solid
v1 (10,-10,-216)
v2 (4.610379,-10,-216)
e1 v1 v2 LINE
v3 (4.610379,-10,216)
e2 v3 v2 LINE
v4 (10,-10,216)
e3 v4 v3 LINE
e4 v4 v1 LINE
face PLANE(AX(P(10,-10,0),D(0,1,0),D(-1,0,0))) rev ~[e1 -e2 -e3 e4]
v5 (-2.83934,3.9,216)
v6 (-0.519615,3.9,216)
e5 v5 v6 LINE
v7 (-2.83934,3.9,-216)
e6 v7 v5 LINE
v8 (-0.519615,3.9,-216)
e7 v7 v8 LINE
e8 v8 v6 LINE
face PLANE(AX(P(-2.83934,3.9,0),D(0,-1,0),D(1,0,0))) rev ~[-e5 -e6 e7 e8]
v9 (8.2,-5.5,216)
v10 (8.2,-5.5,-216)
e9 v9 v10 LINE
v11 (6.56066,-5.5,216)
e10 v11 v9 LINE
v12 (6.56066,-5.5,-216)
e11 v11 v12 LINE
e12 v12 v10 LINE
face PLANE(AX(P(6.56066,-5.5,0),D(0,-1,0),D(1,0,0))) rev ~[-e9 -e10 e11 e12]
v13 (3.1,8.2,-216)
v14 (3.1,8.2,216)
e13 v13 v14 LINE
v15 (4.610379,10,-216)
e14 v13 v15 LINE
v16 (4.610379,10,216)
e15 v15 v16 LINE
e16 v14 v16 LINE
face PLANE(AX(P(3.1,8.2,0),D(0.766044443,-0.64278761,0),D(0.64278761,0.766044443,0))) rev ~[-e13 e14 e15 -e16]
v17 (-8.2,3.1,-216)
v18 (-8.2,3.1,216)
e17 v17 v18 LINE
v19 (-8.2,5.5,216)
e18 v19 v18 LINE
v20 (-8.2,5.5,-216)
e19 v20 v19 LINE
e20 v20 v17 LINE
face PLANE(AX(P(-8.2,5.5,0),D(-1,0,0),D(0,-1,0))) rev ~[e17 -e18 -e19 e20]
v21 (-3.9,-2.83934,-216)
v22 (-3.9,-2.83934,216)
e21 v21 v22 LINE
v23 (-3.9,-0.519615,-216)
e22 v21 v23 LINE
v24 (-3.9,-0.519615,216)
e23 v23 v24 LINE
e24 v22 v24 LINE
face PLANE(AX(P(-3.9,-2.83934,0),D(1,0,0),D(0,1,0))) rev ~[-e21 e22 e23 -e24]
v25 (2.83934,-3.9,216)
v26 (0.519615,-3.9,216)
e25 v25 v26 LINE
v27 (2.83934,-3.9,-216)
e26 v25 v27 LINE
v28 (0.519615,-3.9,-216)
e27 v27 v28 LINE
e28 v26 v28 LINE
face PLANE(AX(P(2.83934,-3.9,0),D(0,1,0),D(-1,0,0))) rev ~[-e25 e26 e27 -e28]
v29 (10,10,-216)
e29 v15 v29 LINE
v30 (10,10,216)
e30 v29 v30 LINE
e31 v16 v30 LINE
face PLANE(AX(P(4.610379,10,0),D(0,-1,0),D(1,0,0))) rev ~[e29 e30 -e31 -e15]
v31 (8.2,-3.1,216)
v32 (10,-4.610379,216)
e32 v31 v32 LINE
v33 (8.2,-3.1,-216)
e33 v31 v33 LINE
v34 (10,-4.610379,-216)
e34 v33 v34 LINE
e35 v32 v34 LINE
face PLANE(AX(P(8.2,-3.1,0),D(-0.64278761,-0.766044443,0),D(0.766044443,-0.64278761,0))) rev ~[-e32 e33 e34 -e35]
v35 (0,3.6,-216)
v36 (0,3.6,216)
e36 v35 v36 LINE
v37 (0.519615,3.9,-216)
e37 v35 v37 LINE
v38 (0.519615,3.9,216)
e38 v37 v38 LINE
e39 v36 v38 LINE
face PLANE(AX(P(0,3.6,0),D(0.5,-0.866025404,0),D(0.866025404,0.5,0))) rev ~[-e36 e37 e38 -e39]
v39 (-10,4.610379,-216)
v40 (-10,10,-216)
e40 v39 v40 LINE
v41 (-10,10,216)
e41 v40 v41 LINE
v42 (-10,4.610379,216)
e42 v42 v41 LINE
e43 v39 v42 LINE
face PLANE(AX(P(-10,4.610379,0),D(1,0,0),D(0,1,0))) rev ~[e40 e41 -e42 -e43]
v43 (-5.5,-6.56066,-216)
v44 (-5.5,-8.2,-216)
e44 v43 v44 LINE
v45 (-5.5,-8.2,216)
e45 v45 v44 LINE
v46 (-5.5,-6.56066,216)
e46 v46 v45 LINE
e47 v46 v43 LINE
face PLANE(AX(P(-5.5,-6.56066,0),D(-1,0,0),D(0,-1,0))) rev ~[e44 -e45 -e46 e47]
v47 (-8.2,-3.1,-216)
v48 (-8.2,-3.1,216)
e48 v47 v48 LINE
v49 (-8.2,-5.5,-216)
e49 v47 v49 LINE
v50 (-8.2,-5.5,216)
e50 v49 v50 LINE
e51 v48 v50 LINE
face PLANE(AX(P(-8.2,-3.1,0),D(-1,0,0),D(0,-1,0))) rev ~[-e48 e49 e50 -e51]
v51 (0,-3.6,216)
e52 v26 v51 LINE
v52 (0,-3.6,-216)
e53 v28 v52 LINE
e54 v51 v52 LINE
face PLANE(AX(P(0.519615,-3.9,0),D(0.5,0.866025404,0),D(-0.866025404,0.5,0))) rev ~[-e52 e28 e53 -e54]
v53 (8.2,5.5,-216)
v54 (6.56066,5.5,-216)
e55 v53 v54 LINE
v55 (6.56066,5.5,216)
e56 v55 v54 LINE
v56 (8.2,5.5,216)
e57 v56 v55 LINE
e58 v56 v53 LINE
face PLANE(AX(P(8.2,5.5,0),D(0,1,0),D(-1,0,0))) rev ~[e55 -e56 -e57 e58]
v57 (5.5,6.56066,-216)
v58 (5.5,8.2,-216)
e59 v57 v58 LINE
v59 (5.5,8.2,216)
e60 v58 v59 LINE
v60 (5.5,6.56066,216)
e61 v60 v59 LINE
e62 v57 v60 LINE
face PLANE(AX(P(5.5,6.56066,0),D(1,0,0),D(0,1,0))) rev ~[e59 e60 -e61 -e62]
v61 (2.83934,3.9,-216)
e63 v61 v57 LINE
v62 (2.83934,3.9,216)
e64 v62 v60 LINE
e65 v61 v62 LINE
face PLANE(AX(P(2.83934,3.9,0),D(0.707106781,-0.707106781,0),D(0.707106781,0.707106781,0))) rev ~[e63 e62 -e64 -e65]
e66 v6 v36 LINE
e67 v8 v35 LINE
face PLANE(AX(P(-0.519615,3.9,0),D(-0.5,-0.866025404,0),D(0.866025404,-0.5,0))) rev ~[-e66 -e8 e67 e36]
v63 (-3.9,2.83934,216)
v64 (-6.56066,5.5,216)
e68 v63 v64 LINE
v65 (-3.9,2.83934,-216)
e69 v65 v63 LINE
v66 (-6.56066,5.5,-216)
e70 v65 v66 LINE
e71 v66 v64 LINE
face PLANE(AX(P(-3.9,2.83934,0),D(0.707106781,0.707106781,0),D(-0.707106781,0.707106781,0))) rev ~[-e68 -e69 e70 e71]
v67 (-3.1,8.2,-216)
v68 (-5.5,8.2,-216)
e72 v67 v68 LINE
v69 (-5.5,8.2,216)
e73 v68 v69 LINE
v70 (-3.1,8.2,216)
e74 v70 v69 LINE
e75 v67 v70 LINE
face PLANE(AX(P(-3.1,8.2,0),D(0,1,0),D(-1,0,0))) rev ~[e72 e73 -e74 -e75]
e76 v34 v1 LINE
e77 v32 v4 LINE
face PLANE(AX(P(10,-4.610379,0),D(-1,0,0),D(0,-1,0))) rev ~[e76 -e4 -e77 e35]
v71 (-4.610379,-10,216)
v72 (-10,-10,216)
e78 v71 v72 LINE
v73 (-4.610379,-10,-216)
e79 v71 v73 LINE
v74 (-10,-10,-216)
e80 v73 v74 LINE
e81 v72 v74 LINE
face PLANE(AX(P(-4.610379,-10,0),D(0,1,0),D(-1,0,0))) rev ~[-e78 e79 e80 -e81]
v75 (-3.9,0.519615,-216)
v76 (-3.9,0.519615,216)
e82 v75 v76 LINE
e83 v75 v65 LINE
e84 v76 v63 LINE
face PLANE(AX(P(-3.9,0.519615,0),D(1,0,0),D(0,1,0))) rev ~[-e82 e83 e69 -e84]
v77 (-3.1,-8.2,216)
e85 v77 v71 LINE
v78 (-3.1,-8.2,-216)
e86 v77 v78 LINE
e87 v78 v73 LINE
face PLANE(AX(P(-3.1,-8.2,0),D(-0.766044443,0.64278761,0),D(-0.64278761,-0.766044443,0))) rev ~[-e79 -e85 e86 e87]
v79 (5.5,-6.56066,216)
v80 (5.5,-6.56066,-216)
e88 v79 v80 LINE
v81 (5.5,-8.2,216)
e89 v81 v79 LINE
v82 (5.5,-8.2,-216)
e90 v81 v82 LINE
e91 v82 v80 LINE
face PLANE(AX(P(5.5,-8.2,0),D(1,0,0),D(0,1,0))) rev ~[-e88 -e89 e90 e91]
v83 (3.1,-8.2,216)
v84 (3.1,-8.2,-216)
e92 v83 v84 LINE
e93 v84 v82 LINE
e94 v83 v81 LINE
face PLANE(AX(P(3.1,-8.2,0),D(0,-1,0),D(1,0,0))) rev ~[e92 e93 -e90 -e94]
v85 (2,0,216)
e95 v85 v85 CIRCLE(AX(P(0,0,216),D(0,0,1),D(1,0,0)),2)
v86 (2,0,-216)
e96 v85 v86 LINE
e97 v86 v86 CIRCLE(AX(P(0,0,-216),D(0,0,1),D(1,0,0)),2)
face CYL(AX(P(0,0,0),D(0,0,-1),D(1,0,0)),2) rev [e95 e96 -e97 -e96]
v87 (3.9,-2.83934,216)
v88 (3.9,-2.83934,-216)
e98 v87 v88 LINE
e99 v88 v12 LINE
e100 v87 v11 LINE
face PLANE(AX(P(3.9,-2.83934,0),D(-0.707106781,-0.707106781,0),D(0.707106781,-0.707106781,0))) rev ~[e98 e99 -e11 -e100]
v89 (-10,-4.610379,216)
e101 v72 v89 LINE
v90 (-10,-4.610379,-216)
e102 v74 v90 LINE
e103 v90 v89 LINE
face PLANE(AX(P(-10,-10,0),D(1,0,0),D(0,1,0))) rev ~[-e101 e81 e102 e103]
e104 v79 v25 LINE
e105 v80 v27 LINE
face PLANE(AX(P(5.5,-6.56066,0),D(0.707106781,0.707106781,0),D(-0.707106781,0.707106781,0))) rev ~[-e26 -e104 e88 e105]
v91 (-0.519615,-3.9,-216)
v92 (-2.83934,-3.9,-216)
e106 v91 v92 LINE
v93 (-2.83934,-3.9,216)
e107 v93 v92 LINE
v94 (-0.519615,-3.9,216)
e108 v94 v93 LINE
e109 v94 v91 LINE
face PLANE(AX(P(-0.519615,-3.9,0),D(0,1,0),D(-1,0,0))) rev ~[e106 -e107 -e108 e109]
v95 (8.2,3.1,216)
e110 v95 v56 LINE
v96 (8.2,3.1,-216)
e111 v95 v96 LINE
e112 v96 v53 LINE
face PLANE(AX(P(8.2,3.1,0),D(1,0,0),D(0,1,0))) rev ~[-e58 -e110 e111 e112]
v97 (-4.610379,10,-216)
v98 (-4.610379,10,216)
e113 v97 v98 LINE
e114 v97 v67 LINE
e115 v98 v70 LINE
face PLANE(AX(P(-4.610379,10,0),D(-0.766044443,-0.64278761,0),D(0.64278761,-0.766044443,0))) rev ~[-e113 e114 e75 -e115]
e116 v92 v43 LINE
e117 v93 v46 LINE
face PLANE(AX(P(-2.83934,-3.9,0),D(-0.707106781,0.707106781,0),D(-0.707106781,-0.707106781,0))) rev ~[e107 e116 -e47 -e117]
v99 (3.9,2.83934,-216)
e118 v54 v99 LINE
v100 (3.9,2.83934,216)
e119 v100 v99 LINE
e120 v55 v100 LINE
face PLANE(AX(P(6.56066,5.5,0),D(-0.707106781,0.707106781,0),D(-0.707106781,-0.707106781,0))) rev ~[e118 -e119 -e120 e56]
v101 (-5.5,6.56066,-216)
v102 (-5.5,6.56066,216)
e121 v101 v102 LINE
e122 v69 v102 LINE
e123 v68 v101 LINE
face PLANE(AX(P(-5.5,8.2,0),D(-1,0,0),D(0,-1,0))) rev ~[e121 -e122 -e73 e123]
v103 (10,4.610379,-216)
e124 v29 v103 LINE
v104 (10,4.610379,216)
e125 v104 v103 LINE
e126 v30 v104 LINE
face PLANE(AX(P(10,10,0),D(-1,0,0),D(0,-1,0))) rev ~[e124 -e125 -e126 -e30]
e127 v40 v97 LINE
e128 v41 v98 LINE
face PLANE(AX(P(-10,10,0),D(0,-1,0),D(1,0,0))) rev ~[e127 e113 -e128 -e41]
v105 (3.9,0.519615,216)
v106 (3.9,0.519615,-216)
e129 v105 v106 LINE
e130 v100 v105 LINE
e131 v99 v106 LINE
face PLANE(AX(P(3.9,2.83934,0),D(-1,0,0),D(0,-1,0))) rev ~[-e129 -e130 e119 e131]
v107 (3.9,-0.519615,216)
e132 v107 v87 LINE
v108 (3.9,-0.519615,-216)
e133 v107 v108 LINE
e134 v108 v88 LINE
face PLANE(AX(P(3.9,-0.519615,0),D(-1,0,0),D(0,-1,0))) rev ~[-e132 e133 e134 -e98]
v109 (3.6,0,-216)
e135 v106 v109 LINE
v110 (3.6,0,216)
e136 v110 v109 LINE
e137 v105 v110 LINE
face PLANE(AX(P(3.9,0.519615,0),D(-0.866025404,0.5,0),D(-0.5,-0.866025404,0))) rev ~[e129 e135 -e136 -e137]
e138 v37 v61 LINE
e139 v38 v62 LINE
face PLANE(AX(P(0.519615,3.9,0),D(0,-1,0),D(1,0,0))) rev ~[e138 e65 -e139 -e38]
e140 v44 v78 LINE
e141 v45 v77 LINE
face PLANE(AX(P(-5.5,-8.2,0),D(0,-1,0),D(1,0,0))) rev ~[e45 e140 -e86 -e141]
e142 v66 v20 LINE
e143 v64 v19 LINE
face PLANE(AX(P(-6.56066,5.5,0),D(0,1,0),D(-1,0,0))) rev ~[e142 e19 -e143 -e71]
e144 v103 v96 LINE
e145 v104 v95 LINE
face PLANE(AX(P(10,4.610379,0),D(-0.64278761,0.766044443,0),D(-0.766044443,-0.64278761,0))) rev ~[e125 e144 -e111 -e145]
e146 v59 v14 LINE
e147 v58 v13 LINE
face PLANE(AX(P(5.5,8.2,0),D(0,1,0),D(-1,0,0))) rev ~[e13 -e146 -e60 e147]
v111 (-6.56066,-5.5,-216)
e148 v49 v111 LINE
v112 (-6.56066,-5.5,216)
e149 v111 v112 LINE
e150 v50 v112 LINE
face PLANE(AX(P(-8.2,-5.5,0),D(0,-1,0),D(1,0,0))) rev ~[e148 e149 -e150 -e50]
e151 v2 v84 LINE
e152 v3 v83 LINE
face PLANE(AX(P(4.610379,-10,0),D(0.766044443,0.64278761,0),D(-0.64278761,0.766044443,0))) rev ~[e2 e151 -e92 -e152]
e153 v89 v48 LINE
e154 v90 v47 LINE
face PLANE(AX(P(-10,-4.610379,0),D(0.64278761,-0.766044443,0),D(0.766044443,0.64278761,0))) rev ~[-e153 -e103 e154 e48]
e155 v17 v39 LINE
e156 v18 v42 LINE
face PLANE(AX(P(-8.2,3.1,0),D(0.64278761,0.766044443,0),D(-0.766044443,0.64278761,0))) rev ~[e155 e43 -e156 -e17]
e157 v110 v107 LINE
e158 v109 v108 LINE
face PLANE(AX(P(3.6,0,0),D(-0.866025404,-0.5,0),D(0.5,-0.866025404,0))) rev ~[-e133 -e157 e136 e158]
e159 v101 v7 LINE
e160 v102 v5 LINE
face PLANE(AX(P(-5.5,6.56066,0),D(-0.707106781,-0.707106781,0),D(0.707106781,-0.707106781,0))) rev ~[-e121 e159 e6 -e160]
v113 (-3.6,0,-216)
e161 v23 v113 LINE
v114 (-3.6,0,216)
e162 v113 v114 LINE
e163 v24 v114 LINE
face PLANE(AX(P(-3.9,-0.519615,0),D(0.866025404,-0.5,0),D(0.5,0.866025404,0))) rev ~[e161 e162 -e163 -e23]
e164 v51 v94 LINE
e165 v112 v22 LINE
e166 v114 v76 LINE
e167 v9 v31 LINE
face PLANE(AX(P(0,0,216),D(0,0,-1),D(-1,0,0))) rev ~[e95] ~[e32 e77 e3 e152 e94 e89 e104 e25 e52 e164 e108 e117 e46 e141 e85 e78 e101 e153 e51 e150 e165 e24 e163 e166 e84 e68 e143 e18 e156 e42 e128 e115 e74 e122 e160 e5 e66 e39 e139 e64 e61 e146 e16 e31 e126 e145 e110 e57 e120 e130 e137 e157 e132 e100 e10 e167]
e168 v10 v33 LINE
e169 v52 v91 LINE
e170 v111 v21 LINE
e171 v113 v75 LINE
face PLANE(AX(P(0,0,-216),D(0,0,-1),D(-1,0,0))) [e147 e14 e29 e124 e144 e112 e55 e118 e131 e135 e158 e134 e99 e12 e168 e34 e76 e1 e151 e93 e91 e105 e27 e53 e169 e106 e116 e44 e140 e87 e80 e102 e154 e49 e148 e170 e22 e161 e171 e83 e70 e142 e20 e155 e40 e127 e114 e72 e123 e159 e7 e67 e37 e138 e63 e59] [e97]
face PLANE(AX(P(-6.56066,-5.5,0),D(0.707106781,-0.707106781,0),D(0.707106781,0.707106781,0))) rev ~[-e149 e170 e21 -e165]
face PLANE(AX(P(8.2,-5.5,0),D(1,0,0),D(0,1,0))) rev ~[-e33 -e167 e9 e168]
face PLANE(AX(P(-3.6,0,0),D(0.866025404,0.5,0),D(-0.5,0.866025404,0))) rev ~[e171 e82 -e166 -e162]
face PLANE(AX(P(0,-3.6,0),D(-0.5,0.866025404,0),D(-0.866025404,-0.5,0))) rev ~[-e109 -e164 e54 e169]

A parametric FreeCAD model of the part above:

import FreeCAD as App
import Part
import Sketcher
from FreeCAD import Vector
Q = App.Units.Quantity


def add_polygon(sketch, points):
    """Adds a closed chain of lines whose ends are joined by coincident constraints."""
    first, n = sketch.GeometryCount, len(points)
    for a, b in zip(points, points[1:] + points[:1]):
        sketch.addGeometry(Part.LineSegment(App.Vector(*a, 0), App.Vector(*b, 0)), False)
    for i in range(n):
        sketch.addConstraint(Sketcher.Constraint("Coincident", first + i, 2, first + (i + 1) % n, 1))

doc = App.newDocument("Part")
body = doc.addObject("PartDesign::Body", "Body")

sketch1 = body.newObject("Sketcher::SketchObject", "Sketch")
sketch1.AttachmentSupport = (doc.getObject("XY_Plane"), [""])
sketch1.MapMode = "FlatFace"
add_polygon(sketch1, [(10, 4.6), (10, 10), (4.6, 10), (3.1, 8.2), (5.5, 8.2), (5.5, 6.6), (2.8, 3.9), (0.5, 3.9), (0, 3.6), (-0.5, 3.9), (-2.8, 3.9), (-5.5, 6.6), (-5.5, 8.2), (-3.1, 8.2), (-4.6, 10), (-10, 10), (-10, 4.6), (-8.2, 3.1), (-8.2, 5.5), (-6.6, 5.5), (-3.9, 2.8), (-3.9, 0.5), (-3.6, 0), (-3.9, -0.5), (-3.9, -2.8), (-6.6, -5.5), (-8.2, -5.5), (-8.2, -3.1), (-10, -4.6), (-10, -10), (-4.6, -10), (-3.1, -8.2), (-5.5, -8.2), (-5.5, -6.6), (-2.8, -3.9), (-0.5, -3.9), (0, -3.6), (0.5, -3.9), (2.8, -3.9), (5.5, -6.6), (5.5, -8.2), (3.1, -8.2), (4.6, -10), (10, -10), (10, -4.6), (8.2, -3.1), (8.2, -5.5), (6.6, -5.5), (3.9, -2.8), (3.9, -0.5), (3.6, 0), (3.9, 0.5), (3.9, 2.8), (6.6, 5.5), (8.2, 5.5), (8.2, 3.1)])
sketch1.addGeometry(Part.Circle(Vector(0, 0, 0), Vector(0, 0, 1), 2), False)
sketch1.addConstraint(Sketcher.Constraint("Vertical", 0))
sketch1.addConstraint(Sketcher.Constraint("Horizontal", 1))
sketch1.addConstraint(Sketcher.Constraint("Horizontal", 3))
sketch1.addConstraint(Sketcher.Constraint("Vertical", 4))
sketch1.addConstraint(Sketcher.Constraint("Horizontal", 6))
sketch1.addConstraint(Sketcher.Constraint("Horizontal", 9))
sketch1.addConstraint(Sketcher.Constraint("Vertical", 11))
sketch1.addConstraint(Sketcher.Constraint("Horizontal", 12))
sketch1.addConstraint(Sketcher.Constraint("Horizontal", 14))
sketch1.addConstraint(Sketcher.Constraint("Vertical", 15))
sketch1.addConstraint(Sketcher.Constraint("Vertical", 17))
sketch1.addConstraint(Sketcher.Constraint("Horizontal", 18))
sketch1.addConstraint(Sketcher.Constraint("Vertical", 20))
sketch1.addConstraint(Sketcher.Constraint("Vertical", 23))
sketch1.addConstraint(Sketcher.Constraint("Horizontal", 25))
sketch1.addConstraint(Sketcher.Constraint("Vertical", 26))
sketch1.addConstraint(Sketcher.Constraint("Vertical", 28))
sketch1.addConstraint(Sketcher.Constraint("Horizontal", 29))
sketch1.addConstraint(Sketcher.Constraint("Horizontal", 31))
sketch1.addConstraint(Sketcher.Constraint("Vertical", 32))
sketch1.addConstraint(Sketcher.Constraint("Horizontal", 34))
sketch1.addConstraint(Sketcher.Constraint("Horizontal", 37))
sketch1.addConstraint(Sketcher.Constraint("Vertical", 39))
sketch1.addConstraint(Sketcher.Constraint("Horizontal", 40))
sketch1.addConstraint(Sketcher.Constraint("Horizontal", 42))
sketch1.addConstraint(Sketcher.Constraint("Vertical", 43))
sketch1.addConstraint(Sketcher.Constraint("Vertical", 45))
sketch1.addConstraint(Sketcher.Constraint("Horizontal", 46))
sketch1.addConstraint(Sketcher.Constraint("Vertical", 48))
sketch1.addConstraint(Sketcher.Constraint("Vertical", 51))
sketch1.addConstraint(Sketcher.Constraint("Horizontal", 53))
sketch1.addConstraint(Sketcher.Constraint("Vertical", 54))
sketch1.addConstraint(Sketcher.Constraint("Coincident", 56, 3, -1, 1))
sketch1.addConstraint(Sketcher.Constraint("Symmetric", 0, 2, 28, 2, -1, 1))
sketch1.addConstraint(Sketcher.Constraint("Symmetric", 2, 2, 30, 2, -1, 1))
sketch1.addConstraint(Sketcher.Constraint("Symmetric", 4, 2, 32, 2, -1, 1))
sketch1.addConstraint(Sketcher.Constraint("Symmetric", 5, 2, 33, 2, -1, 1))
sketch1.addConstraint(Sketcher.Constraint("Symmetric", 7, 2, 35, 2, -1, 1))
sketch1.addConstraint(Sketcher.Constraint("Symmetric", 8, 2, 36, 2, -1, 1))
sketch1.addConstraint(Sketcher.Constraint("Symmetric", 10, 2, 38, 2, -1, 1))
sketch1.addConstraint(Sketcher.Constraint("Symmetric", 12, 2, 40, 2, -1, 1))
sketch1.addConstraint(Sketcher.Constraint("Symmetric", 13, 2, 41, 2, -1, 1))
sketch1.addConstraint(Sketcher.Constraint("Symmetric", 15, 2, 43, 2, -1, 1))
sketch1.addConstraint(Sketcher.Constraint("Symmetric", 16, 2, 44, 2, -1, 1))
sketch1.addConstraint(Sketcher.Constraint("Symmetric", 18, 2, 46, 2, -1, 1))
sketch1.addConstraint(Sketcher.Constraint("Symmetric", 19, 2, 47, 2, -1, 1))
sketch1.addConstraint(Sketcher.Constraint("Symmetric", 21, 2, 49, 2, -1, 1))
sketch1.addConstraint(Sketcher.Constraint("Symmetric", 22, 2, 50, 2, -1, 1))
sketch1.addConstraint(Sketcher.Constraint("Symmetric", 24, 2, 52, 2, -1, 1))
sketch1.addConstraint(Sketcher.Constraint("Symmetric", 26, 2, 54, 2, -1, 1))
sketch1.addConstraint(Sketcher.Constraint("Symmetric", 6, 2, 8, 2, -2))
sketch1.addConstraint(Sketcher.Constraint("Symmetric", 4, 2, 10, 2, -2))
sketch1.addConstraint(Sketcher.Constraint("Symmetric", 2, 2, 12, 2, -2))
sketch1.addConstraint(Sketcher.Constraint("Symmetric", 1, 2, 13, 2, -2))
sketch1.addConstraint(Sketcher.Constraint("Symmetric", 27, 2, 43, 2, -2))
sketch1.addConstraint(Sketcher.Constraint("Symmetric", 26, 2, 44, 2, -2))
sketch1.addConstraint(Sketcher.Constraint("Symmetric", 24, 2, 46, 2, -2))
sketch1.addConstraint(Sketcher.Constraint("Symmetric", 23, 2, 47, 2, -2))
sketch1.addConstraint(Sketcher.Constraint("PointOnObject", 7, 2, -2))
sketch1.addConstraint(Sketcher.Constraint("PointOnObject", 21, 2, -1))
sketch1.addConstraint(Sketcher.Constraint("Perpendicular", 5, 10))
sketch1.addConstraint(Sketcher.Constraint("Perpendicular", 2, 16))
sketch1.addConstraint(Sketcher.Constraint("Parallel", 10, 19))
sketch1.addConstraint(Sketcher.Constraint("Perpendicular", 7, 21))
sketch1.addConstraint(Sketcher.Constraint("Perpendicular", 8, 22))
sketch1.addConstraint(Sketcher.Constraint("Perpendicular", 19, 24))
sketch1.addConstraint(Sketcher.Constraint("Perpendicular", 16, 30))
sketch1.addConstraint(Sketcher.Constraint("Perpendicular", 21, 35))
sketch1.addConstraint(Sketcher.Constraint("Perpendicular", 33, 38))
sketch1.addConstraint(Sketcher.Constraint("Perpendicular", 35, 49))
sketch1.addConstraint(Sketcher.Constraint("Perpendicular", 47, 52))
sketch1.addConstraint(Sketcher.Constraint("Perpendicular", 41, 55))
sketch1.addConstraint(Sketcher.Constraint("Equal", 42, 0))
sketch1.addConstraint(Sketcher.Constraint("Equal", 53, 4))
sketch1.addConstraint(Sketcher.Constraint("Equal", 40, 17))
sketch1.addConstraint(Sketcher.Constraint("Equal", 37, 20))
sketch1.addConstraint(Sketcher.Constraint("Equal", 13, 16))
sketch1.addConstraint(Sketcher.Constraint("Equal", 10, 19))
sketch1.addConstraint(Sketcher.Constraint("Equal", 8, 21))
sketch1.addConstraint(Sketcher.Constraint("Diameter", 56, Q("4 mm")))
sketch1.addConstraint(Sketcher.Constraint("Angle", 2, Q("-130 deg")))
sketch1.addConstraint(Sketcher.Constraint("Angle", 7, Q("-150 deg")))
sketch1.addConstraint(Sketcher.Constraint("DistanceX", 3, 1, 3, 2, Q("2.4 mm")))
sketch1.addConstraint(Sketcher.Constraint("DistanceX", -1, 1, 0, 2, Q("10 mm")))
sketch1.addConstraint(Sketcher.Constraint("Distance", 7, Q("0.6 mm")))
sketch1.addConstraint(Sketcher.Constraint("DistanceX", -1, 1, 2, 2, Q("3.1 mm")))
sketch1.addConstraint(Sketcher.Constraint("DistanceY", -1, 1, 2, 2, Q("8.2 mm")))
sketch1.addConstraint(Sketcher.Constraint("DistanceY", -1, 1, 5, 2, Q("3.9 mm")))
sketch1.addConstraint(Sketcher.Constraint("DistanceX", 18, 1, 18, 2, Q("1.63934 mm")))
pad1 = body.newObject("PartDesign::Pad", "Pad")
pad1.Profile = sketch1
pad1.Length = 432
pad1.Midplane = True

doc.recompute()
